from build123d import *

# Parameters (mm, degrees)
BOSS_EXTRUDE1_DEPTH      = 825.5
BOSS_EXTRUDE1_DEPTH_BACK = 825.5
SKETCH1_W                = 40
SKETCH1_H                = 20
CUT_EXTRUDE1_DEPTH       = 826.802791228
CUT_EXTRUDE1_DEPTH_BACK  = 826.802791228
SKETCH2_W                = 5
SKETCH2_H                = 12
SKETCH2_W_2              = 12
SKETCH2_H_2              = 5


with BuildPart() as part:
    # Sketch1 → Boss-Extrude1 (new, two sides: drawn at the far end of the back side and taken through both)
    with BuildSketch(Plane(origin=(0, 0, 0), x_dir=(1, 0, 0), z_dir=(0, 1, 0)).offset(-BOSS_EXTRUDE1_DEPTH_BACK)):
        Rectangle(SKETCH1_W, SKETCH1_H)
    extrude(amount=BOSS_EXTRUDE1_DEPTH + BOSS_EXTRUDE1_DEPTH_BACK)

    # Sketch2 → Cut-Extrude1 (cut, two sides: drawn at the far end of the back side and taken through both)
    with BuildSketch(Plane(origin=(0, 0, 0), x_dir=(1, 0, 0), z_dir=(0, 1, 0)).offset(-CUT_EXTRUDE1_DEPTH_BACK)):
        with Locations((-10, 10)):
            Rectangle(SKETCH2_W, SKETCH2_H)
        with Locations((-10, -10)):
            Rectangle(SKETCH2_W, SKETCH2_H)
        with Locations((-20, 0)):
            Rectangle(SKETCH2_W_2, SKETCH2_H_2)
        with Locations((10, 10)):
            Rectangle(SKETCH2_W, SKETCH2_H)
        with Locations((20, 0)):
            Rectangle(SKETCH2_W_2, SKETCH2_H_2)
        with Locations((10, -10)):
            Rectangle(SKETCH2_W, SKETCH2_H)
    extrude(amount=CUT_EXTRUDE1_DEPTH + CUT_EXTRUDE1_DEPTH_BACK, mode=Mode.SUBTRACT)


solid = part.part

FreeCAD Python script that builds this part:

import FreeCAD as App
import Part
import Sketcher

V = App.Vector


def add_polygon(sketch, points):
    """Adds a closed chain of lines whose ends are joined by coincident constraints."""
    first, n = sketch.GeometryCount, len(points)
    for a, b in zip(points, points[1:] + points[:1]):
        sketch.addGeometry(Part.LineSegment(App.Vector(*a, 0), App.Vector(*b, 0)), False)
    for i in range(n):
        sketch.addConstraint(Sketcher.Constraint("Coincident", first + i, 2, first + (i + 1) % n, 1))

doc = App.newDocument("Part")
body = doc.addObject("PartDesign::Body", "Body")

# Sketch on XZ plane
sketch1 = doc.addObject("Sketcher::SketchObject", "Sketch")
body.addObject(sketch1)
sketch1.AttachmentSupport = (doc.XZ_Plane, [""])
sketch1.MapMode = "FlatFace"
add_polygon(sketch1, [(-20, -10), (-20, 10), (20, 10), (20, -10)])  # lines 0-3
sketch1.addConstraint([
    Sketcher.Constraint("Vertical", 0),
    Sketcher.Constraint("Horizontal", 1),
    Sketcher.Constraint("Vertical", 2),
    Sketcher.Constraint("Horizontal", 3),
    Sketcher.Constraint("Symmetric", 0, 2, 2, 2, -1, 1),
    Sketcher.Constraint("DistanceX", 1, 1, 1, 2, 40.0),
    Sketcher.Constraint("DistanceY", 0, 1, 0, 2, 20.0),
])
pad1 = doc.addObject("PartDesign::Pad", "Pad")
body.addObject(pad1)
pad1.Profile = sketch1
pad1.Type = "TwoLengths"
pad1.Length = 825.5
pad1.Length2 = 825.5
pad1.Reversed = True

# Sketch on XZ plane
sketch2 = doc.addObject("Sketcher::SketchObject", "Sketch001")
body.addObject(sketch2)
sketch2.AttachmentSupport = (doc.XZ_Plane, [""])
sketch2.MapMode = "FlatFace"
add_polygon(sketch2, [(-12, -16), (-12, -4), (-8, -4), (-8, -16)])  # lines 0-3
add_polygon(sketch2, [(-12, 4), (-12, 16), (-8, 16), (-8, 4)])  # lines 4-7
add_polygon(sketch2, [(-26, -2), (-26, 2), (-14, 2), (-14, -2)])  # lines 8-11
add_polygon(sketch2, [(8, -16), (8, -4), (12, -4), (12, -16)])  # lines 12-15
add_polygon(sketch2, [(14, -2), (14, 2), (26, 2), (26, -2)])  # lines 16-19
add_polygon(sketch2, [(8, 4), (8, 16), (12, 16), (12, 4)])  # lines 20-23
sketch2.addConstraint([
    Sketcher.Constraint("Vertical", 0),
    Sketcher.Constraint("Horizontal", 1),
    Sketcher.Constraint("Vertical", 2),
    Sketcher.Constraint("Horizontal", 3),
    Sketcher.Constraint("Vertical", 4),
    Sketcher.Constraint("Horizontal", 5),
    Sketcher.Constraint("Vertical", 6),
    Sketcher.Constraint("Horizontal", 7),
    Sketcher.Constraint("Vertical", 8),
    Sketcher.Constraint("Horizontal", 9),
    Sketcher.Constraint("Vertical", 10),
    Sketcher.Constraint("Horizontal", 11),
    Sketcher.Constraint("Vertical", 12),
    Sketcher.Constraint("Horizontal", 13),
    Sketcher.Constraint("Vertical", 14),
    Sketcher.Constraint("Horizontal", 15),
    Sketcher.Constraint("Vertical", 16),
    Sketcher.Constraint("Horizontal", 17),
    Sketcher.Constraint("Vertical", 18),
    Sketcher.Constraint("Horizontal", 19),
    Sketcher.Constraint("Vertical", 20),
    Sketcher.Constraint("Horizontal", 21),
    Sketcher.Constraint("Vertical", 22),
    Sketcher.Constraint("Horizontal", 23),
    Sketcher.Constraint("Symmetric", 6, 2, 12, 2, -1, 1),
    Sketcher.Constraint("Symmetric", 4, 2, 14, 2, -1, 1),
    Sketcher.Constraint("Symmetric", 10, 2, 16, 2, -1, 1),
    Sketcher.Constraint("Symmetric", 8, 2, 18, 2, -1, 1),
    Sketcher.Constraint("Symmetric", 2, 2, 20, 2, -1, 1),
    Sketcher.Constraint("Symmetric", 0, 2, 22, 2, -1, 1),
    Sketcher.Constraint("Symmetric", 1, 2, 12, 2, -2),
    Sketcher.Constraint("Symmetric", 3, 2, 14, 2, -2),
    Sketcher.Constraint("Horizontal", 9, 2, 16, 2),
    Sketcher.Constraint("Equal", 19, 0),
    Sketcher.Constraint("Equal", 23, 8),
    Sketcher.Constraint("DistanceX", 1, 1, 1, 2, 5.0),
    Sketcher.Constraint("DistanceX", 9, 1, 9, 2, 12.0),
    Sketcher.Constraint("DistanceY", 0, 2, -1, 1, 4.0),
    Sketcher.Constraint("DistanceX", 8, 2, -1, 1, 26.0),
    Sketcher.Constraint("DistanceX", 1, 2, 12, 2, 15.0),
])
pocket1 = doc.addObject("PartDesign::Pocket", "Pocket")
body.addObject(pocket1)
pocket1.Profile = sketch2
pocket1.Type = "ThroughAll"
pocket1.Midplane = True

doc.recompute()
